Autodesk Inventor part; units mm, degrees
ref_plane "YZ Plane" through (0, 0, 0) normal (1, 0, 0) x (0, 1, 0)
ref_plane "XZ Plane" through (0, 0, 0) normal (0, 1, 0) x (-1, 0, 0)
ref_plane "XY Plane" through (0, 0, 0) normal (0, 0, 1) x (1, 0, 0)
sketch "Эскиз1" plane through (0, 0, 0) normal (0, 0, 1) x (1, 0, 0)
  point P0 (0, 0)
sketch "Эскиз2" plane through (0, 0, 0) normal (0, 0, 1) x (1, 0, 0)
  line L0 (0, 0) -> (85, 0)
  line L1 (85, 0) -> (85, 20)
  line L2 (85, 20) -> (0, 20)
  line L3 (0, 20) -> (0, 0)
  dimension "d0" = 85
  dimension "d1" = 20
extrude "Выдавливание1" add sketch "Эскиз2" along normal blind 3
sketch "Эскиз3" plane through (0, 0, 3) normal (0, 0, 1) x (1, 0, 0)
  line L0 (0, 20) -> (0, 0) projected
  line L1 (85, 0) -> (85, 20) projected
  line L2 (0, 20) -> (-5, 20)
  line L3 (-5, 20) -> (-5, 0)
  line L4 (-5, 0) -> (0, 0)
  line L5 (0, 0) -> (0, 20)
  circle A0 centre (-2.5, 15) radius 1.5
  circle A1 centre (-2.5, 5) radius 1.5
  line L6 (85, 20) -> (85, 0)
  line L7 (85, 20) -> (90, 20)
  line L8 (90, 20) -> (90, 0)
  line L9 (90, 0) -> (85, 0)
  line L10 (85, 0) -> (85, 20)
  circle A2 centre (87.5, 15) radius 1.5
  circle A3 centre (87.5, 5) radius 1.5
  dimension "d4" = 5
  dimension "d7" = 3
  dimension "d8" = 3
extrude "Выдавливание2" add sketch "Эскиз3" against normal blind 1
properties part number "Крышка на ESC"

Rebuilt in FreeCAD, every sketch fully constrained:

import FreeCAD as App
import Part
import Sketcher

V = App.Vector
Q = App.Units.Quantity

doc = App.newDocument("Part")
body = doc.addObject("PartDesign::Body", "Body")

# Sketch on XY plane
sketch1 = doc.addObject("Sketcher::SketchObject", "Sketch")
body.addObject(sketch1)
sketch1.AttachmentSupport = (doc.XY_Plane, [""])
sketch1.MapMode = "FlatFace"
sketch1.addGeometry([
    Part.LineSegment(V(0, 20, 0), V(0, 0, 0)),
    Part.LineSegment(V(0, 0, 0), V(85, 0, 0)),
    Part.LineSegment(V(85, 0, 0), V(85, 20, 0)),
    Part.LineSegment(V(85, 20, 0), V(0, 20, 0)),
], False)
sketch1.addConstraint([
    Sketcher.Constraint("Coincident", 0, 2, 1, 1),
    Sketcher.Constraint("Coincident", 1, 2, 2, 1),
    Sketcher.Constraint("Coincident", 2, 2, 3, 1),
    Sketcher.Constraint("Coincident", 3, 2, 0, 1),
    Sketcher.Constraint("Vertical", 0),
    Sketcher.Constraint("Horizontal", 1),
    Sketcher.Constraint("Vertical", 2),
    Sketcher.Constraint("Horizontal", 3),
    Sketcher.Constraint("Coincident", 0, 2, -1, 1),
    Sketcher.Constraint("DistanceX", 1, 1, 1, 2, Q("85 mm")),
    Sketcher.Constraint("DistanceY", 0, 2, 0, 1, Q("20 mm")),
])
pad1 = doc.addObject("PartDesign::Pad", "Pad")
body.addObject(pad1)
pad1.Profile = sketch1
pad1.Length = 3

# Sketch on XY plane
sketch2 = doc.addObject("Sketcher::SketchObject", "Sketch001")
body.addObject(sketch2)
sketch2.AttachmentSupport = (doc.XY_Plane, [""])
sketch2.MapMode = "FlatFace"
sketch2.AttachmentOffset = App.Placement(V(0, 0, 3), App.Rotation())
sketch2.addGeometry([
    Part.LineSegment(V(0, 0, 0), V(0, 20, 0)),  # 0
    Part.LineSegment(V(0, 20, 0), V(-5, 20, 0)),  # 1
    Part.LineSegment(V(-5, 20, 0), V(-5, 0, 0)),  # 2
    Part.LineSegment(V(-5, 0, 0), V(0, 0, 0)),  # 3
    Part.Circle(V(-2.5, 5, 0), V(0, 0, 1), 1.5),  # 4
    Part.Circle(V(-2.5, 15, 0), V(0, 0, 1), 1.5),  # 5
    Part.LineSegment(V(85, 20, 0), V(85, 0, 0)),  # 6
    Part.LineSegment(V(85, 0, 0), V(90, 0, 0)),  # 7
    Part.LineSegment(V(90, 0, 0), V(90, 20, 0)),  # 8
    Part.LineSegment(V(90, 20, 0), V(85, 20, 0)),  # 9
    Part.Circle(V(87.5, 5, 0), V(0, 0, 1), 1.5),  # 10
    Part.Circle(V(87.5, 15, 0), V(0, 0, 1), 1.5),  # 11
], False)
sketch2.addConstraint([
    Sketcher.Constraint("Coincident", 0, 2, 1, 1),
    Sketcher.Constraint("Coincident", 1, 2, 2, 1),
    Sketcher.Constraint("Coincident", 2, 2, 3, 1),
    Sketcher.Constraint("Coincident", 3, 2, 0, 1),
    Sketcher.Constraint("Coincident", 6, 2, 7, 1),
    Sketcher.Constraint("Coincident", 7, 2, 8, 1),
    Sketcher.Constraint("Coincident", 8, 2, 9, 1),
    Sketcher.Constraint("Coincident", 9, 2, 6, 1),
    Sketcher.Constraint("Vertical", 0),
    Sketcher.Constraint("Horizontal", 1),
    Sketcher.Constraint("Vertical", 2),
    Sketcher.Constraint("Horizontal", 3),
    Sketcher.Constraint("Vertical", 6),
    Sketcher.Constraint("Horizontal", 7),
    Sketcher.Constraint("Vertical", 8),
    Sketcher.Constraint("Horizontal", 9),
    Sketcher.Constraint("Coincident", 3, 2, -1, 1),
    Sketcher.Constraint("Equal", 4, 5),
    Sketcher.Constraint("Equal", 5, 10),
    Sketcher.Constraint("Equal", 10, 11),
    Sketcher.Constraint("PointOnObject", 6, 2, -1),
    Sketcher.Constraint("Horizontal", 4, 3, 10, 3),
    Sketcher.Constraint("Horizontal", 5, 3, 11, 3),
    Sketcher.Constraint("Horizontal", 1, 2, 8, 2),
    Sketcher.Constraint("Vertical", 4, 3, 5, 3),
    Sketcher.Constraint("Vertical", 10, 3, 11, 3),
    Sketcher.Constraint("Equal", 3, 7),
    Sketcher.Constraint("Diameter", 4, Q("3 mm")),
    Sketcher.Constraint("DistanceX", 1, 2, 1, 1, Q("5 mm")),
    Sketcher.Constraint("DistanceY", -1, 1, 4, 3, Q("5 mm")),
    Sketcher.Constraint("DistanceY", 5, 3, 0, 2, Q("5 mm")),
    Sketcher.Constraint("DistanceY", 0, 1, 0, 2, Q("20 mm")),
    Sketcher.Constraint("DistanceX", -1, 1, 6, 2, Q("85 mm")),
    Sketcher.Constraint("DistanceX", 4, 3, 10, 3, Q("90 mm")),
    Sketcher.Constraint("DistanceX", 4, 3, -1, 1, Q("2.5 mm")),
])
pad2 = doc.addObject("PartDesign::Pad", "Pad001")
body.addObject(pad2)
pad2.Profile = sketch2
pad2.Length = 1
pad2.Reversed = True

doc.recompute()
